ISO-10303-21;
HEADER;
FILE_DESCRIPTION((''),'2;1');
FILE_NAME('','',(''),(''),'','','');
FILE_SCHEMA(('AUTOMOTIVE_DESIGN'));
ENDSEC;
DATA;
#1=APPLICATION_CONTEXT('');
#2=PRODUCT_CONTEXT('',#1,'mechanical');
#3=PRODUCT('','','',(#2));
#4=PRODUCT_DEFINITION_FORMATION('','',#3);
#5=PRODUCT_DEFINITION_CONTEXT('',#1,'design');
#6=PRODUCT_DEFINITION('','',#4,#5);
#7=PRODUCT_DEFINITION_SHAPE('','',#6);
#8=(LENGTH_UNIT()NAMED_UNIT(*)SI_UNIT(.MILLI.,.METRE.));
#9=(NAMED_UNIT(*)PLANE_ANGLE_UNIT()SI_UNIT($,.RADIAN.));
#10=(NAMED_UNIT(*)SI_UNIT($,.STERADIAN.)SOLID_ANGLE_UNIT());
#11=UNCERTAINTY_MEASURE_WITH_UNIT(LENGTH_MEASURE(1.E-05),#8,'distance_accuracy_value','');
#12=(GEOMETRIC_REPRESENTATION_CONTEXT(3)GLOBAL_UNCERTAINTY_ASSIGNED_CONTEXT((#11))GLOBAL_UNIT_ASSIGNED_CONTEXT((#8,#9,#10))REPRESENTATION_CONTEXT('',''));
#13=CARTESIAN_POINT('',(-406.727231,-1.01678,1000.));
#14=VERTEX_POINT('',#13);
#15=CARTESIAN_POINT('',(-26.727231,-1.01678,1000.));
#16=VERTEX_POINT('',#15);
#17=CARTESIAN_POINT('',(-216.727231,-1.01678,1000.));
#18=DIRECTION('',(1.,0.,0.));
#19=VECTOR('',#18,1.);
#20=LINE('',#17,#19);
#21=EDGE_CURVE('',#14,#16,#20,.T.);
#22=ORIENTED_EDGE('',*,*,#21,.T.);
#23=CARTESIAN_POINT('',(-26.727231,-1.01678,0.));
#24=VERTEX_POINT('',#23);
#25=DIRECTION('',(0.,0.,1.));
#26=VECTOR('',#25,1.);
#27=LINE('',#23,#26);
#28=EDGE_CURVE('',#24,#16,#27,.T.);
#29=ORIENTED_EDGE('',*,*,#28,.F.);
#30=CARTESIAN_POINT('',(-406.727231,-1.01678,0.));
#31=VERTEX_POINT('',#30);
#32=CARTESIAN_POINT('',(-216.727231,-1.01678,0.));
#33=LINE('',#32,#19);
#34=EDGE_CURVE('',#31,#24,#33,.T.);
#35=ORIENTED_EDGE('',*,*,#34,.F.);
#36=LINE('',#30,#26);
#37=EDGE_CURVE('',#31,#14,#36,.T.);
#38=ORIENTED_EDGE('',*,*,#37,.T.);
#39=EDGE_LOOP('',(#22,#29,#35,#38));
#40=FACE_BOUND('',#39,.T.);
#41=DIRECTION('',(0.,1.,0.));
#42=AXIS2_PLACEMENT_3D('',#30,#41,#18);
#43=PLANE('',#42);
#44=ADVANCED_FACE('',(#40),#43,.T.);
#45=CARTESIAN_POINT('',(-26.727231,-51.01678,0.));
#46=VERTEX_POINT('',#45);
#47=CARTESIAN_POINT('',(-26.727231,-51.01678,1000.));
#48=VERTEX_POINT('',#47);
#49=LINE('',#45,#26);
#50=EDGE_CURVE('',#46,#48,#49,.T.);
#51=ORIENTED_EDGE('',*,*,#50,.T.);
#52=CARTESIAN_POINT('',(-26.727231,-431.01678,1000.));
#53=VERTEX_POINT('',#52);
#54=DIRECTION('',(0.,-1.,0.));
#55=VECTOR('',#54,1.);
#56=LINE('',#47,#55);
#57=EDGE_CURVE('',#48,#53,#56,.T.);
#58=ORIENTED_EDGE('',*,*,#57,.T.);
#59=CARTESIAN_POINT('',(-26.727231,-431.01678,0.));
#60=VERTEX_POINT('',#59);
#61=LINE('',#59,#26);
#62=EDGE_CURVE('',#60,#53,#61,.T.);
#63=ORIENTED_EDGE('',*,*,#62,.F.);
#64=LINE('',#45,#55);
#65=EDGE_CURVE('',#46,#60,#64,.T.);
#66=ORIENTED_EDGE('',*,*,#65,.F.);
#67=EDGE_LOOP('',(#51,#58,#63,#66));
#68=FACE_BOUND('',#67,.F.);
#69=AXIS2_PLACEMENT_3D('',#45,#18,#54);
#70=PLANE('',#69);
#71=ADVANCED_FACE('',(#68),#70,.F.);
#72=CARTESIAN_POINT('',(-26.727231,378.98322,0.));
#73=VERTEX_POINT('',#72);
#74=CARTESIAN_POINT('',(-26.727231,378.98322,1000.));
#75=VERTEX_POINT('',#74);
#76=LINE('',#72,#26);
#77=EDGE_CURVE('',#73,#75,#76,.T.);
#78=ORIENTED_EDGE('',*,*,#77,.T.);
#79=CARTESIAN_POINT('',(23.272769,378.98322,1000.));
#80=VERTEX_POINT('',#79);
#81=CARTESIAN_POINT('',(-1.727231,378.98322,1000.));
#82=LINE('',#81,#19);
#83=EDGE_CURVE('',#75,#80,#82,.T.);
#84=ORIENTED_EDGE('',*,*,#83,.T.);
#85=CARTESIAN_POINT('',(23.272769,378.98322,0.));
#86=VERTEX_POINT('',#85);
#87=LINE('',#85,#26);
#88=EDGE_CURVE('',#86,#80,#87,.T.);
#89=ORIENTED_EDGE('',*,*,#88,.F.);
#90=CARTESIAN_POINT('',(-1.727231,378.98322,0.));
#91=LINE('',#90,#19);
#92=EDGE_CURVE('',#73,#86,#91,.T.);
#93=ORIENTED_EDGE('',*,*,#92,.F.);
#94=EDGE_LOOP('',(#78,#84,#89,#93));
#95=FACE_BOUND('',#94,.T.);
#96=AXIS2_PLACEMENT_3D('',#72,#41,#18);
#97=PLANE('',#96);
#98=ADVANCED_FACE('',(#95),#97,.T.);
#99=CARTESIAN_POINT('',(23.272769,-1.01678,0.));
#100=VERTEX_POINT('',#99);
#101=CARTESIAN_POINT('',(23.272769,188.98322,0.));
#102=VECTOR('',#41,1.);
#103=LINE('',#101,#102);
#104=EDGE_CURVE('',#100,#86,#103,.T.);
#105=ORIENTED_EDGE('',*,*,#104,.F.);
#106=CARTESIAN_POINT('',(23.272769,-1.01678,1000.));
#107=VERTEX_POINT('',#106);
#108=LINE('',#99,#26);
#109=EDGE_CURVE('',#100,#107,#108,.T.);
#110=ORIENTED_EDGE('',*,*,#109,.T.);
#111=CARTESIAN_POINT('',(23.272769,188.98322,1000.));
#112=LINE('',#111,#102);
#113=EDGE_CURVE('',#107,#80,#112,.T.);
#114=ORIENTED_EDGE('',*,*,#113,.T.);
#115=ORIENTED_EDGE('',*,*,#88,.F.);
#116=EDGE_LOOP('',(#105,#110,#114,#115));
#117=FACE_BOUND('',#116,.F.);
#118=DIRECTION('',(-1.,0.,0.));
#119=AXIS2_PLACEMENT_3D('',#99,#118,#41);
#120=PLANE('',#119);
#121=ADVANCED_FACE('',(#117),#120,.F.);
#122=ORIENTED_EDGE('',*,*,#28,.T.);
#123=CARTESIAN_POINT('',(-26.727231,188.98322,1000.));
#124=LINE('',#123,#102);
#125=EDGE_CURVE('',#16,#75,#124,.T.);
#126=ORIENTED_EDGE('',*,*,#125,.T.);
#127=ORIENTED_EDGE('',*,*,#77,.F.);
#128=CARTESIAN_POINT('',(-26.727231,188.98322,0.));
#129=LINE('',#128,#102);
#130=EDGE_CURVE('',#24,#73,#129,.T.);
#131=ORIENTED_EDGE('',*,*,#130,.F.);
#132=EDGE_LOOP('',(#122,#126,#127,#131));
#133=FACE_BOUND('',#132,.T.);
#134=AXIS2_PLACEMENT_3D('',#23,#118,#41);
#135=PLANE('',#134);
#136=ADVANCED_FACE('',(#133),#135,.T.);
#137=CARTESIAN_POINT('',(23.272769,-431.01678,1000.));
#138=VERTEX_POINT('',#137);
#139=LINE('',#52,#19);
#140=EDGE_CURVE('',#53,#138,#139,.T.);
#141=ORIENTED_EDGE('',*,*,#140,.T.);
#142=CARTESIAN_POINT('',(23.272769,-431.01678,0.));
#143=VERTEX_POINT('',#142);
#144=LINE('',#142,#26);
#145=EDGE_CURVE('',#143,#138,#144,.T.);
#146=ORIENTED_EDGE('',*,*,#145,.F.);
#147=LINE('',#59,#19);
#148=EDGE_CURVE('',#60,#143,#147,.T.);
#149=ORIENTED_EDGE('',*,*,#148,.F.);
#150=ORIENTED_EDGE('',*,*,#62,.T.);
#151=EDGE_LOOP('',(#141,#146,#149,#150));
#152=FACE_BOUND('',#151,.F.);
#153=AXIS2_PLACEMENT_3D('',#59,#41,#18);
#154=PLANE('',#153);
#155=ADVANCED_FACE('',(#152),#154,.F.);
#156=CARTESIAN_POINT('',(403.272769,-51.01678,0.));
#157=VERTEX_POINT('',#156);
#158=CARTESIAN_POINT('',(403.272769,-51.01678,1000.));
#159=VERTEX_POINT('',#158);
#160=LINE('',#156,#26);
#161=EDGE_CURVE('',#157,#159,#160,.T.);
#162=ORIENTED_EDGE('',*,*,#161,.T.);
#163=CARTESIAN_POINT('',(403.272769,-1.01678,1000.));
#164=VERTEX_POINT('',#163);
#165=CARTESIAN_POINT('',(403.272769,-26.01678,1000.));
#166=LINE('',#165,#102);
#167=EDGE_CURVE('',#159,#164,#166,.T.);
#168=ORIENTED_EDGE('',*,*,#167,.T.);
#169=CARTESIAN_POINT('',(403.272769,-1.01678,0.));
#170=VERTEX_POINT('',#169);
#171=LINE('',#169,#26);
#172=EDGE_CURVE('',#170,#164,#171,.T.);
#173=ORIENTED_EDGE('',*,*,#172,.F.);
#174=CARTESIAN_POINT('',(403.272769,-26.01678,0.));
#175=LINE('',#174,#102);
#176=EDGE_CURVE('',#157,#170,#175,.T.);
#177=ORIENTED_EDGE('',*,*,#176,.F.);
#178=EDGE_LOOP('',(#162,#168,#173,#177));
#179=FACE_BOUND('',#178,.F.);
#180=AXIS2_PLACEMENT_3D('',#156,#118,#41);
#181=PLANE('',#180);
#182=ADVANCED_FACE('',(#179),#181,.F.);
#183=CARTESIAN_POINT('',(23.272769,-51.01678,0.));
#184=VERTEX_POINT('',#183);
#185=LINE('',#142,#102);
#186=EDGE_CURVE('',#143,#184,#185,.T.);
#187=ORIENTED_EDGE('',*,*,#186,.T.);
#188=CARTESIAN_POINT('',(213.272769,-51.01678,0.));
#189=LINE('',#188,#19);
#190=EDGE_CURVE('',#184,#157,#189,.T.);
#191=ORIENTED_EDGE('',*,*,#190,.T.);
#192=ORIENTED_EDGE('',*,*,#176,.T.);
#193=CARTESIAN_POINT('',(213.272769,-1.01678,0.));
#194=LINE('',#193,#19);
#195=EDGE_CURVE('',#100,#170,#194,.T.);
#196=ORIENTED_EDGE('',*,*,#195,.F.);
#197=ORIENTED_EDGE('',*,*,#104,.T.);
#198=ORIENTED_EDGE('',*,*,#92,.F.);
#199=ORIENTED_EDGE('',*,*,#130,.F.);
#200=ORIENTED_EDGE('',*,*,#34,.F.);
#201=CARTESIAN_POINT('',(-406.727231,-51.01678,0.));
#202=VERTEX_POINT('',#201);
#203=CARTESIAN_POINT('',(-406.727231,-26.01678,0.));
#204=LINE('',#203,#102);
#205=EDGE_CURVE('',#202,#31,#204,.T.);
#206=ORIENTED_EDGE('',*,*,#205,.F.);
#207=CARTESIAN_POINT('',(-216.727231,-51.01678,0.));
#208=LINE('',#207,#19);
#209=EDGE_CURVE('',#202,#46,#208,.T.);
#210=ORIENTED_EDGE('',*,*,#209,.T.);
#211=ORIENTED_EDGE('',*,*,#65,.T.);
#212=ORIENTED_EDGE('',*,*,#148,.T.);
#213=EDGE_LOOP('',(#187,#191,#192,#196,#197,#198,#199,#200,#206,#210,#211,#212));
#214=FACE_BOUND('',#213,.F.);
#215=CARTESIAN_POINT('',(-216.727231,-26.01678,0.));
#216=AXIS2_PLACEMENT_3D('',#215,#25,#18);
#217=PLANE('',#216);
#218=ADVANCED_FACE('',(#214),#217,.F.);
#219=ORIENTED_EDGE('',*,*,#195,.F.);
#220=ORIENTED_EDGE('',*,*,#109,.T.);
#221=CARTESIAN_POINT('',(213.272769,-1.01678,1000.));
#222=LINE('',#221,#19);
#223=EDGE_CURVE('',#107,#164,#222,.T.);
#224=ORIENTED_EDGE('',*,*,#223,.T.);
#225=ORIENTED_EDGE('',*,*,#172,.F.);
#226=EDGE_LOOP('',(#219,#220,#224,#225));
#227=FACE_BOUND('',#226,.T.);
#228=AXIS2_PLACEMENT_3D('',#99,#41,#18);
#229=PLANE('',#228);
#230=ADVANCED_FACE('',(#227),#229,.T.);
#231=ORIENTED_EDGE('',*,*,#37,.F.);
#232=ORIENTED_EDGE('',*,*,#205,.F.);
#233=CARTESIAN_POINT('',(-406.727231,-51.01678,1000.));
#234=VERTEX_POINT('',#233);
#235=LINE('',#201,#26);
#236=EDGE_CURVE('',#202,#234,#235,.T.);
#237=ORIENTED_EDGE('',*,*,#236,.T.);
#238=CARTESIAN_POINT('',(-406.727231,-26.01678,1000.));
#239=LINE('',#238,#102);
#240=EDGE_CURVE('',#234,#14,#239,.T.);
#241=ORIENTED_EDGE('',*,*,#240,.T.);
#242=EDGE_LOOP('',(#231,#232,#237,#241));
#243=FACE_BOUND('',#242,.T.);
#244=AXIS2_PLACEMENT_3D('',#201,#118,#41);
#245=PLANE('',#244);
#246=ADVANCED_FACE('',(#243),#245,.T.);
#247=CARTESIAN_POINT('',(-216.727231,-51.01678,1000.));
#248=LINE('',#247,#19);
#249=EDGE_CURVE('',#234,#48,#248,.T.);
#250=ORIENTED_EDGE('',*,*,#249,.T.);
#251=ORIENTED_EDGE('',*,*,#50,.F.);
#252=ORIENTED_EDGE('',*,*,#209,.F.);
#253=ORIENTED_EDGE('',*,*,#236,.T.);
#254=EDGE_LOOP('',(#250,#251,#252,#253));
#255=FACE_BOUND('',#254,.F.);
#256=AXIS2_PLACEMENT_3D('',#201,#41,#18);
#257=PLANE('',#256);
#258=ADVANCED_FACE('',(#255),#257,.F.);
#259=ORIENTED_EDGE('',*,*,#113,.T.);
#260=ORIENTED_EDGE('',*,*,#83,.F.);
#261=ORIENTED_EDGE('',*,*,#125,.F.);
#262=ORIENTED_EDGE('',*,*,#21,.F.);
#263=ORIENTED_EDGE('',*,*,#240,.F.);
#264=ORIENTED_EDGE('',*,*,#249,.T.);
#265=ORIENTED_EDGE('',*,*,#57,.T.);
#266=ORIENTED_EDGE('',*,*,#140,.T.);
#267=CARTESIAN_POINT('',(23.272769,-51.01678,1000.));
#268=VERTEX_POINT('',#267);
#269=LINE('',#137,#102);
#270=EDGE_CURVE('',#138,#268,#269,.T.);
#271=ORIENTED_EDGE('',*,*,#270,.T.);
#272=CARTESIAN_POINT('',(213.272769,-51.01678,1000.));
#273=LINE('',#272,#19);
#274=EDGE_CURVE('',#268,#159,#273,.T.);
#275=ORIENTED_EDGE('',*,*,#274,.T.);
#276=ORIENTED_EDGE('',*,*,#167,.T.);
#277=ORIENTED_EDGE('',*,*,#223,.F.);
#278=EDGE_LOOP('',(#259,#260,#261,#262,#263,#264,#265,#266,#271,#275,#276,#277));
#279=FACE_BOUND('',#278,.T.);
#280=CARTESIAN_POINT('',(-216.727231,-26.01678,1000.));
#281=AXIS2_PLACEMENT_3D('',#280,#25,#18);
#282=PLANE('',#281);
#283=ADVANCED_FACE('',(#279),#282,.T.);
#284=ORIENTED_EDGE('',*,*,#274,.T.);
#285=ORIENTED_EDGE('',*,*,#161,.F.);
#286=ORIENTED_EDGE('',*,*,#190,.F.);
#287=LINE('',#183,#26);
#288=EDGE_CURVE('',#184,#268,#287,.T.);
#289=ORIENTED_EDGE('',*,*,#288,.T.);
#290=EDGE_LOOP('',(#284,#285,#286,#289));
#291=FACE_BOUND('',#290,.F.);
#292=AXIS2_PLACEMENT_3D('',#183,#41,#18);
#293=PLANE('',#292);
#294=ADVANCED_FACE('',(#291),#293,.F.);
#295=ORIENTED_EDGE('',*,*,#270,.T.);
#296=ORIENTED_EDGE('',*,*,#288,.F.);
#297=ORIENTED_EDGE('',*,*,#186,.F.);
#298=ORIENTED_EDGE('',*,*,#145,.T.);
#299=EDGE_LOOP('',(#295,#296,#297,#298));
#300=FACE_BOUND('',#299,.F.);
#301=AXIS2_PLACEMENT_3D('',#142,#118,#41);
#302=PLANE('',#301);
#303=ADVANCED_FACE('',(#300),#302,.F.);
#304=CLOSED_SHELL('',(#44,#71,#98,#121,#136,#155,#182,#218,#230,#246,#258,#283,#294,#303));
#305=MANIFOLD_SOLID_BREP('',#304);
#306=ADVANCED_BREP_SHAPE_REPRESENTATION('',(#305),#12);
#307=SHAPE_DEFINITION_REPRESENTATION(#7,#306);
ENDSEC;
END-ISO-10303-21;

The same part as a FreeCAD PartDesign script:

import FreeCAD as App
import Part
import Sketcher

V = App.Vector

doc = App.newDocument("Part")
params = doc.addObject("Spreadsheet::Sheet", "Params")
for row, (alias, value) in enumerate([
    ("sketch1_width", "380 mm"),
    ("sketch1_width2", "50 mm"),
    ("pad1_length", "1000 mm"),
], start=1):
    params.set(f"A{row}", alias)
    params.set(f"B{row}", "=" + value)
    params.setAlias(f"B{row}", alias)

body = doc.addObject("PartDesign::Body", "Body")

sketch1 = body.newObject("Sketcher::SketchObject", "Sketch")
sketch1.AttachmentSupport = (doc.getObject("XY_Plane"), [""])
sketch1.MapMode = "FlatFace"
sketch1.addGeometry(Part.LineSegment(V(-407, -1, 0), V(-407, -51, 0)), False)
sketch1.addGeometry(Part.LineSegment(V(-407, -51, 0), V(-27, -51, 0)), False)
sketch1.addGeometry(Part.LineSegment(V(-27, -51, 0), V(-27, -431, 0)), False)
sketch1.addGeometry(Part.LineSegment(V(-27, -431, 0), V(23, -431, 0)), False)
sketch1.addGeometry(Part.LineSegment(V(23, -431, 0), V(23, -51, 0)), False)
sketch1.addGeometry(Part.LineSegment(V(23, -51, 0), V(403, -51, 0)), False)
sketch1.addGeometry(Part.LineSegment(V(403, -51, 0), V(403, -1, 0)), False)
sketch1.addGeometry(Part.LineSegment(V(403, -1, 0), V(23, -1, 0)), False)
sketch1.addGeometry(Part.LineSegment(V(23, -1, 0), V(23, 379, 0)), False)
sketch1.addGeometry(Part.LineSegment(V(23, 379, 0), V(-27, 379, 0)), False)
sketch1.addGeometry(Part.LineSegment(V(-27, 379, 0), V(-27, -1, 0)), False)
sketch1.addGeometry(Part.LineSegment(V(-27, -1, 0), V(-407, -1, 0)), False)
sketch1.addConstraint(Sketcher.Constraint("Coincident", 0, 2, 1, 1))
sketch1.addConstraint(Sketcher.Constraint("Coincident", 1, 2, 2, 1))
sketch1.addConstraint(Sketcher.Constraint("Coincident", 2, 2, 3, 1))
sketch1.addConstraint(Sketcher.Constraint("Coincident", 3, 2, 4, 1))
sketch1.addConstraint(Sketcher.Constraint("Coincident", 4, 2, 5, 1))
sketch1.addConstraint(Sketcher.Constraint("Coincident", 5, 2, 6, 1))
sketch1.addConstraint(Sketcher.Constraint("Coincident", 6, 2, 7, 1))
sketch1.addConstraint(Sketcher.Constraint("Coincident", 7, 2, 8, 1))
sketch1.addConstraint(Sketcher.Constraint("Coincident", 8, 2, 9, 1))
sketch1.addConstraint(Sketcher.Constraint("Coincident", 9, 2, 10, 1))
sketch1.addConstraint(Sketcher.Constraint("Coincident", 10, 2, 11, 1))
sketch1.addConstraint(Sketcher.Constraint("Coincident", 11, 2, 0, 1))
sketch1.addConstraint(Sketcher.Constraint("Vertical", 0))
sketch1.addConstraint(Sketcher.Constraint("Horizontal", 1))
sketch1.addConstraint(Sketcher.Constraint("Vertical", 2))
sketch1.addConstraint(Sketcher.Constraint("Horizontal", 3))
sketch1.addConstraint(Sketcher.Constraint("Vertical", 4))
sketch1.addConstraint(Sketcher.Constraint("Horizontal", 5))
sketch1.addConstraint(Sketcher.Constraint("Vertical", 6))
sketch1.addConstraint(Sketcher.Constraint("Horizontal", 7))
sketch1.addConstraint(Sketcher.Constraint("Vertical", 8))
sketch1.addConstraint(Sketcher.Constraint("Horizontal", 9))
sketch1.addConstraint(Sketcher.Constraint("Vertical", 10))
sketch1.addConstraint(Sketcher.Constraint("Horizontal", 11))
sketch1.addConstraint(Sketcher.Constraint("Horizontal", 1, 2, 4, 2))
sketch1.addConstraint(Sketcher.Constraint("Horizontal", 7, 2, 10, 2))
sketch1.addConstraint(Sketcher.Constraint("Vertical", 4, 2, 7, 2))
sketch1.addConstraint(Sketcher.Constraint("Vertical", 2, 2, 9, 2))
sketch1.addConstraint(Sketcher.Constraint("Equal", 1, 5))
sketch1.addConstraint(Sketcher.Constraint("Equal", 9, 0))
sketch1.addConstraint(Sketcher.Constraint("Equal", 11, 2))
sketch1.addConstraint(Sketcher.Constraint("Equal", 4, 8))
sketch1.addConstraint(Sketcher.Constraint("DistanceX", 1, 1, 1, 2, 380.0))
sketch1.addConstraint(Sketcher.Constraint("DistanceX", 3, 1, 3, 2, 50.0))
sketch1.addConstraint(Sketcher.Constraint("DistanceX", 0, 2, -1, 1, 406.727231))
sketch1.addConstraint(Sketcher.Constraint("DistanceY", 0, 2, -1, 1, 51.01678))
sketch1.setExpression("Constraints[32]", "Params.sketch1_width")
sketch1.setExpression("Constraints[33]", "Params.sketch1_width2")
pad1 = body.newObject("PartDesign::Pad", "Pad")
pad1.Profile = sketch1
pad1.setExpression("Length", "Params.pad1_length")

doc.recompute()
